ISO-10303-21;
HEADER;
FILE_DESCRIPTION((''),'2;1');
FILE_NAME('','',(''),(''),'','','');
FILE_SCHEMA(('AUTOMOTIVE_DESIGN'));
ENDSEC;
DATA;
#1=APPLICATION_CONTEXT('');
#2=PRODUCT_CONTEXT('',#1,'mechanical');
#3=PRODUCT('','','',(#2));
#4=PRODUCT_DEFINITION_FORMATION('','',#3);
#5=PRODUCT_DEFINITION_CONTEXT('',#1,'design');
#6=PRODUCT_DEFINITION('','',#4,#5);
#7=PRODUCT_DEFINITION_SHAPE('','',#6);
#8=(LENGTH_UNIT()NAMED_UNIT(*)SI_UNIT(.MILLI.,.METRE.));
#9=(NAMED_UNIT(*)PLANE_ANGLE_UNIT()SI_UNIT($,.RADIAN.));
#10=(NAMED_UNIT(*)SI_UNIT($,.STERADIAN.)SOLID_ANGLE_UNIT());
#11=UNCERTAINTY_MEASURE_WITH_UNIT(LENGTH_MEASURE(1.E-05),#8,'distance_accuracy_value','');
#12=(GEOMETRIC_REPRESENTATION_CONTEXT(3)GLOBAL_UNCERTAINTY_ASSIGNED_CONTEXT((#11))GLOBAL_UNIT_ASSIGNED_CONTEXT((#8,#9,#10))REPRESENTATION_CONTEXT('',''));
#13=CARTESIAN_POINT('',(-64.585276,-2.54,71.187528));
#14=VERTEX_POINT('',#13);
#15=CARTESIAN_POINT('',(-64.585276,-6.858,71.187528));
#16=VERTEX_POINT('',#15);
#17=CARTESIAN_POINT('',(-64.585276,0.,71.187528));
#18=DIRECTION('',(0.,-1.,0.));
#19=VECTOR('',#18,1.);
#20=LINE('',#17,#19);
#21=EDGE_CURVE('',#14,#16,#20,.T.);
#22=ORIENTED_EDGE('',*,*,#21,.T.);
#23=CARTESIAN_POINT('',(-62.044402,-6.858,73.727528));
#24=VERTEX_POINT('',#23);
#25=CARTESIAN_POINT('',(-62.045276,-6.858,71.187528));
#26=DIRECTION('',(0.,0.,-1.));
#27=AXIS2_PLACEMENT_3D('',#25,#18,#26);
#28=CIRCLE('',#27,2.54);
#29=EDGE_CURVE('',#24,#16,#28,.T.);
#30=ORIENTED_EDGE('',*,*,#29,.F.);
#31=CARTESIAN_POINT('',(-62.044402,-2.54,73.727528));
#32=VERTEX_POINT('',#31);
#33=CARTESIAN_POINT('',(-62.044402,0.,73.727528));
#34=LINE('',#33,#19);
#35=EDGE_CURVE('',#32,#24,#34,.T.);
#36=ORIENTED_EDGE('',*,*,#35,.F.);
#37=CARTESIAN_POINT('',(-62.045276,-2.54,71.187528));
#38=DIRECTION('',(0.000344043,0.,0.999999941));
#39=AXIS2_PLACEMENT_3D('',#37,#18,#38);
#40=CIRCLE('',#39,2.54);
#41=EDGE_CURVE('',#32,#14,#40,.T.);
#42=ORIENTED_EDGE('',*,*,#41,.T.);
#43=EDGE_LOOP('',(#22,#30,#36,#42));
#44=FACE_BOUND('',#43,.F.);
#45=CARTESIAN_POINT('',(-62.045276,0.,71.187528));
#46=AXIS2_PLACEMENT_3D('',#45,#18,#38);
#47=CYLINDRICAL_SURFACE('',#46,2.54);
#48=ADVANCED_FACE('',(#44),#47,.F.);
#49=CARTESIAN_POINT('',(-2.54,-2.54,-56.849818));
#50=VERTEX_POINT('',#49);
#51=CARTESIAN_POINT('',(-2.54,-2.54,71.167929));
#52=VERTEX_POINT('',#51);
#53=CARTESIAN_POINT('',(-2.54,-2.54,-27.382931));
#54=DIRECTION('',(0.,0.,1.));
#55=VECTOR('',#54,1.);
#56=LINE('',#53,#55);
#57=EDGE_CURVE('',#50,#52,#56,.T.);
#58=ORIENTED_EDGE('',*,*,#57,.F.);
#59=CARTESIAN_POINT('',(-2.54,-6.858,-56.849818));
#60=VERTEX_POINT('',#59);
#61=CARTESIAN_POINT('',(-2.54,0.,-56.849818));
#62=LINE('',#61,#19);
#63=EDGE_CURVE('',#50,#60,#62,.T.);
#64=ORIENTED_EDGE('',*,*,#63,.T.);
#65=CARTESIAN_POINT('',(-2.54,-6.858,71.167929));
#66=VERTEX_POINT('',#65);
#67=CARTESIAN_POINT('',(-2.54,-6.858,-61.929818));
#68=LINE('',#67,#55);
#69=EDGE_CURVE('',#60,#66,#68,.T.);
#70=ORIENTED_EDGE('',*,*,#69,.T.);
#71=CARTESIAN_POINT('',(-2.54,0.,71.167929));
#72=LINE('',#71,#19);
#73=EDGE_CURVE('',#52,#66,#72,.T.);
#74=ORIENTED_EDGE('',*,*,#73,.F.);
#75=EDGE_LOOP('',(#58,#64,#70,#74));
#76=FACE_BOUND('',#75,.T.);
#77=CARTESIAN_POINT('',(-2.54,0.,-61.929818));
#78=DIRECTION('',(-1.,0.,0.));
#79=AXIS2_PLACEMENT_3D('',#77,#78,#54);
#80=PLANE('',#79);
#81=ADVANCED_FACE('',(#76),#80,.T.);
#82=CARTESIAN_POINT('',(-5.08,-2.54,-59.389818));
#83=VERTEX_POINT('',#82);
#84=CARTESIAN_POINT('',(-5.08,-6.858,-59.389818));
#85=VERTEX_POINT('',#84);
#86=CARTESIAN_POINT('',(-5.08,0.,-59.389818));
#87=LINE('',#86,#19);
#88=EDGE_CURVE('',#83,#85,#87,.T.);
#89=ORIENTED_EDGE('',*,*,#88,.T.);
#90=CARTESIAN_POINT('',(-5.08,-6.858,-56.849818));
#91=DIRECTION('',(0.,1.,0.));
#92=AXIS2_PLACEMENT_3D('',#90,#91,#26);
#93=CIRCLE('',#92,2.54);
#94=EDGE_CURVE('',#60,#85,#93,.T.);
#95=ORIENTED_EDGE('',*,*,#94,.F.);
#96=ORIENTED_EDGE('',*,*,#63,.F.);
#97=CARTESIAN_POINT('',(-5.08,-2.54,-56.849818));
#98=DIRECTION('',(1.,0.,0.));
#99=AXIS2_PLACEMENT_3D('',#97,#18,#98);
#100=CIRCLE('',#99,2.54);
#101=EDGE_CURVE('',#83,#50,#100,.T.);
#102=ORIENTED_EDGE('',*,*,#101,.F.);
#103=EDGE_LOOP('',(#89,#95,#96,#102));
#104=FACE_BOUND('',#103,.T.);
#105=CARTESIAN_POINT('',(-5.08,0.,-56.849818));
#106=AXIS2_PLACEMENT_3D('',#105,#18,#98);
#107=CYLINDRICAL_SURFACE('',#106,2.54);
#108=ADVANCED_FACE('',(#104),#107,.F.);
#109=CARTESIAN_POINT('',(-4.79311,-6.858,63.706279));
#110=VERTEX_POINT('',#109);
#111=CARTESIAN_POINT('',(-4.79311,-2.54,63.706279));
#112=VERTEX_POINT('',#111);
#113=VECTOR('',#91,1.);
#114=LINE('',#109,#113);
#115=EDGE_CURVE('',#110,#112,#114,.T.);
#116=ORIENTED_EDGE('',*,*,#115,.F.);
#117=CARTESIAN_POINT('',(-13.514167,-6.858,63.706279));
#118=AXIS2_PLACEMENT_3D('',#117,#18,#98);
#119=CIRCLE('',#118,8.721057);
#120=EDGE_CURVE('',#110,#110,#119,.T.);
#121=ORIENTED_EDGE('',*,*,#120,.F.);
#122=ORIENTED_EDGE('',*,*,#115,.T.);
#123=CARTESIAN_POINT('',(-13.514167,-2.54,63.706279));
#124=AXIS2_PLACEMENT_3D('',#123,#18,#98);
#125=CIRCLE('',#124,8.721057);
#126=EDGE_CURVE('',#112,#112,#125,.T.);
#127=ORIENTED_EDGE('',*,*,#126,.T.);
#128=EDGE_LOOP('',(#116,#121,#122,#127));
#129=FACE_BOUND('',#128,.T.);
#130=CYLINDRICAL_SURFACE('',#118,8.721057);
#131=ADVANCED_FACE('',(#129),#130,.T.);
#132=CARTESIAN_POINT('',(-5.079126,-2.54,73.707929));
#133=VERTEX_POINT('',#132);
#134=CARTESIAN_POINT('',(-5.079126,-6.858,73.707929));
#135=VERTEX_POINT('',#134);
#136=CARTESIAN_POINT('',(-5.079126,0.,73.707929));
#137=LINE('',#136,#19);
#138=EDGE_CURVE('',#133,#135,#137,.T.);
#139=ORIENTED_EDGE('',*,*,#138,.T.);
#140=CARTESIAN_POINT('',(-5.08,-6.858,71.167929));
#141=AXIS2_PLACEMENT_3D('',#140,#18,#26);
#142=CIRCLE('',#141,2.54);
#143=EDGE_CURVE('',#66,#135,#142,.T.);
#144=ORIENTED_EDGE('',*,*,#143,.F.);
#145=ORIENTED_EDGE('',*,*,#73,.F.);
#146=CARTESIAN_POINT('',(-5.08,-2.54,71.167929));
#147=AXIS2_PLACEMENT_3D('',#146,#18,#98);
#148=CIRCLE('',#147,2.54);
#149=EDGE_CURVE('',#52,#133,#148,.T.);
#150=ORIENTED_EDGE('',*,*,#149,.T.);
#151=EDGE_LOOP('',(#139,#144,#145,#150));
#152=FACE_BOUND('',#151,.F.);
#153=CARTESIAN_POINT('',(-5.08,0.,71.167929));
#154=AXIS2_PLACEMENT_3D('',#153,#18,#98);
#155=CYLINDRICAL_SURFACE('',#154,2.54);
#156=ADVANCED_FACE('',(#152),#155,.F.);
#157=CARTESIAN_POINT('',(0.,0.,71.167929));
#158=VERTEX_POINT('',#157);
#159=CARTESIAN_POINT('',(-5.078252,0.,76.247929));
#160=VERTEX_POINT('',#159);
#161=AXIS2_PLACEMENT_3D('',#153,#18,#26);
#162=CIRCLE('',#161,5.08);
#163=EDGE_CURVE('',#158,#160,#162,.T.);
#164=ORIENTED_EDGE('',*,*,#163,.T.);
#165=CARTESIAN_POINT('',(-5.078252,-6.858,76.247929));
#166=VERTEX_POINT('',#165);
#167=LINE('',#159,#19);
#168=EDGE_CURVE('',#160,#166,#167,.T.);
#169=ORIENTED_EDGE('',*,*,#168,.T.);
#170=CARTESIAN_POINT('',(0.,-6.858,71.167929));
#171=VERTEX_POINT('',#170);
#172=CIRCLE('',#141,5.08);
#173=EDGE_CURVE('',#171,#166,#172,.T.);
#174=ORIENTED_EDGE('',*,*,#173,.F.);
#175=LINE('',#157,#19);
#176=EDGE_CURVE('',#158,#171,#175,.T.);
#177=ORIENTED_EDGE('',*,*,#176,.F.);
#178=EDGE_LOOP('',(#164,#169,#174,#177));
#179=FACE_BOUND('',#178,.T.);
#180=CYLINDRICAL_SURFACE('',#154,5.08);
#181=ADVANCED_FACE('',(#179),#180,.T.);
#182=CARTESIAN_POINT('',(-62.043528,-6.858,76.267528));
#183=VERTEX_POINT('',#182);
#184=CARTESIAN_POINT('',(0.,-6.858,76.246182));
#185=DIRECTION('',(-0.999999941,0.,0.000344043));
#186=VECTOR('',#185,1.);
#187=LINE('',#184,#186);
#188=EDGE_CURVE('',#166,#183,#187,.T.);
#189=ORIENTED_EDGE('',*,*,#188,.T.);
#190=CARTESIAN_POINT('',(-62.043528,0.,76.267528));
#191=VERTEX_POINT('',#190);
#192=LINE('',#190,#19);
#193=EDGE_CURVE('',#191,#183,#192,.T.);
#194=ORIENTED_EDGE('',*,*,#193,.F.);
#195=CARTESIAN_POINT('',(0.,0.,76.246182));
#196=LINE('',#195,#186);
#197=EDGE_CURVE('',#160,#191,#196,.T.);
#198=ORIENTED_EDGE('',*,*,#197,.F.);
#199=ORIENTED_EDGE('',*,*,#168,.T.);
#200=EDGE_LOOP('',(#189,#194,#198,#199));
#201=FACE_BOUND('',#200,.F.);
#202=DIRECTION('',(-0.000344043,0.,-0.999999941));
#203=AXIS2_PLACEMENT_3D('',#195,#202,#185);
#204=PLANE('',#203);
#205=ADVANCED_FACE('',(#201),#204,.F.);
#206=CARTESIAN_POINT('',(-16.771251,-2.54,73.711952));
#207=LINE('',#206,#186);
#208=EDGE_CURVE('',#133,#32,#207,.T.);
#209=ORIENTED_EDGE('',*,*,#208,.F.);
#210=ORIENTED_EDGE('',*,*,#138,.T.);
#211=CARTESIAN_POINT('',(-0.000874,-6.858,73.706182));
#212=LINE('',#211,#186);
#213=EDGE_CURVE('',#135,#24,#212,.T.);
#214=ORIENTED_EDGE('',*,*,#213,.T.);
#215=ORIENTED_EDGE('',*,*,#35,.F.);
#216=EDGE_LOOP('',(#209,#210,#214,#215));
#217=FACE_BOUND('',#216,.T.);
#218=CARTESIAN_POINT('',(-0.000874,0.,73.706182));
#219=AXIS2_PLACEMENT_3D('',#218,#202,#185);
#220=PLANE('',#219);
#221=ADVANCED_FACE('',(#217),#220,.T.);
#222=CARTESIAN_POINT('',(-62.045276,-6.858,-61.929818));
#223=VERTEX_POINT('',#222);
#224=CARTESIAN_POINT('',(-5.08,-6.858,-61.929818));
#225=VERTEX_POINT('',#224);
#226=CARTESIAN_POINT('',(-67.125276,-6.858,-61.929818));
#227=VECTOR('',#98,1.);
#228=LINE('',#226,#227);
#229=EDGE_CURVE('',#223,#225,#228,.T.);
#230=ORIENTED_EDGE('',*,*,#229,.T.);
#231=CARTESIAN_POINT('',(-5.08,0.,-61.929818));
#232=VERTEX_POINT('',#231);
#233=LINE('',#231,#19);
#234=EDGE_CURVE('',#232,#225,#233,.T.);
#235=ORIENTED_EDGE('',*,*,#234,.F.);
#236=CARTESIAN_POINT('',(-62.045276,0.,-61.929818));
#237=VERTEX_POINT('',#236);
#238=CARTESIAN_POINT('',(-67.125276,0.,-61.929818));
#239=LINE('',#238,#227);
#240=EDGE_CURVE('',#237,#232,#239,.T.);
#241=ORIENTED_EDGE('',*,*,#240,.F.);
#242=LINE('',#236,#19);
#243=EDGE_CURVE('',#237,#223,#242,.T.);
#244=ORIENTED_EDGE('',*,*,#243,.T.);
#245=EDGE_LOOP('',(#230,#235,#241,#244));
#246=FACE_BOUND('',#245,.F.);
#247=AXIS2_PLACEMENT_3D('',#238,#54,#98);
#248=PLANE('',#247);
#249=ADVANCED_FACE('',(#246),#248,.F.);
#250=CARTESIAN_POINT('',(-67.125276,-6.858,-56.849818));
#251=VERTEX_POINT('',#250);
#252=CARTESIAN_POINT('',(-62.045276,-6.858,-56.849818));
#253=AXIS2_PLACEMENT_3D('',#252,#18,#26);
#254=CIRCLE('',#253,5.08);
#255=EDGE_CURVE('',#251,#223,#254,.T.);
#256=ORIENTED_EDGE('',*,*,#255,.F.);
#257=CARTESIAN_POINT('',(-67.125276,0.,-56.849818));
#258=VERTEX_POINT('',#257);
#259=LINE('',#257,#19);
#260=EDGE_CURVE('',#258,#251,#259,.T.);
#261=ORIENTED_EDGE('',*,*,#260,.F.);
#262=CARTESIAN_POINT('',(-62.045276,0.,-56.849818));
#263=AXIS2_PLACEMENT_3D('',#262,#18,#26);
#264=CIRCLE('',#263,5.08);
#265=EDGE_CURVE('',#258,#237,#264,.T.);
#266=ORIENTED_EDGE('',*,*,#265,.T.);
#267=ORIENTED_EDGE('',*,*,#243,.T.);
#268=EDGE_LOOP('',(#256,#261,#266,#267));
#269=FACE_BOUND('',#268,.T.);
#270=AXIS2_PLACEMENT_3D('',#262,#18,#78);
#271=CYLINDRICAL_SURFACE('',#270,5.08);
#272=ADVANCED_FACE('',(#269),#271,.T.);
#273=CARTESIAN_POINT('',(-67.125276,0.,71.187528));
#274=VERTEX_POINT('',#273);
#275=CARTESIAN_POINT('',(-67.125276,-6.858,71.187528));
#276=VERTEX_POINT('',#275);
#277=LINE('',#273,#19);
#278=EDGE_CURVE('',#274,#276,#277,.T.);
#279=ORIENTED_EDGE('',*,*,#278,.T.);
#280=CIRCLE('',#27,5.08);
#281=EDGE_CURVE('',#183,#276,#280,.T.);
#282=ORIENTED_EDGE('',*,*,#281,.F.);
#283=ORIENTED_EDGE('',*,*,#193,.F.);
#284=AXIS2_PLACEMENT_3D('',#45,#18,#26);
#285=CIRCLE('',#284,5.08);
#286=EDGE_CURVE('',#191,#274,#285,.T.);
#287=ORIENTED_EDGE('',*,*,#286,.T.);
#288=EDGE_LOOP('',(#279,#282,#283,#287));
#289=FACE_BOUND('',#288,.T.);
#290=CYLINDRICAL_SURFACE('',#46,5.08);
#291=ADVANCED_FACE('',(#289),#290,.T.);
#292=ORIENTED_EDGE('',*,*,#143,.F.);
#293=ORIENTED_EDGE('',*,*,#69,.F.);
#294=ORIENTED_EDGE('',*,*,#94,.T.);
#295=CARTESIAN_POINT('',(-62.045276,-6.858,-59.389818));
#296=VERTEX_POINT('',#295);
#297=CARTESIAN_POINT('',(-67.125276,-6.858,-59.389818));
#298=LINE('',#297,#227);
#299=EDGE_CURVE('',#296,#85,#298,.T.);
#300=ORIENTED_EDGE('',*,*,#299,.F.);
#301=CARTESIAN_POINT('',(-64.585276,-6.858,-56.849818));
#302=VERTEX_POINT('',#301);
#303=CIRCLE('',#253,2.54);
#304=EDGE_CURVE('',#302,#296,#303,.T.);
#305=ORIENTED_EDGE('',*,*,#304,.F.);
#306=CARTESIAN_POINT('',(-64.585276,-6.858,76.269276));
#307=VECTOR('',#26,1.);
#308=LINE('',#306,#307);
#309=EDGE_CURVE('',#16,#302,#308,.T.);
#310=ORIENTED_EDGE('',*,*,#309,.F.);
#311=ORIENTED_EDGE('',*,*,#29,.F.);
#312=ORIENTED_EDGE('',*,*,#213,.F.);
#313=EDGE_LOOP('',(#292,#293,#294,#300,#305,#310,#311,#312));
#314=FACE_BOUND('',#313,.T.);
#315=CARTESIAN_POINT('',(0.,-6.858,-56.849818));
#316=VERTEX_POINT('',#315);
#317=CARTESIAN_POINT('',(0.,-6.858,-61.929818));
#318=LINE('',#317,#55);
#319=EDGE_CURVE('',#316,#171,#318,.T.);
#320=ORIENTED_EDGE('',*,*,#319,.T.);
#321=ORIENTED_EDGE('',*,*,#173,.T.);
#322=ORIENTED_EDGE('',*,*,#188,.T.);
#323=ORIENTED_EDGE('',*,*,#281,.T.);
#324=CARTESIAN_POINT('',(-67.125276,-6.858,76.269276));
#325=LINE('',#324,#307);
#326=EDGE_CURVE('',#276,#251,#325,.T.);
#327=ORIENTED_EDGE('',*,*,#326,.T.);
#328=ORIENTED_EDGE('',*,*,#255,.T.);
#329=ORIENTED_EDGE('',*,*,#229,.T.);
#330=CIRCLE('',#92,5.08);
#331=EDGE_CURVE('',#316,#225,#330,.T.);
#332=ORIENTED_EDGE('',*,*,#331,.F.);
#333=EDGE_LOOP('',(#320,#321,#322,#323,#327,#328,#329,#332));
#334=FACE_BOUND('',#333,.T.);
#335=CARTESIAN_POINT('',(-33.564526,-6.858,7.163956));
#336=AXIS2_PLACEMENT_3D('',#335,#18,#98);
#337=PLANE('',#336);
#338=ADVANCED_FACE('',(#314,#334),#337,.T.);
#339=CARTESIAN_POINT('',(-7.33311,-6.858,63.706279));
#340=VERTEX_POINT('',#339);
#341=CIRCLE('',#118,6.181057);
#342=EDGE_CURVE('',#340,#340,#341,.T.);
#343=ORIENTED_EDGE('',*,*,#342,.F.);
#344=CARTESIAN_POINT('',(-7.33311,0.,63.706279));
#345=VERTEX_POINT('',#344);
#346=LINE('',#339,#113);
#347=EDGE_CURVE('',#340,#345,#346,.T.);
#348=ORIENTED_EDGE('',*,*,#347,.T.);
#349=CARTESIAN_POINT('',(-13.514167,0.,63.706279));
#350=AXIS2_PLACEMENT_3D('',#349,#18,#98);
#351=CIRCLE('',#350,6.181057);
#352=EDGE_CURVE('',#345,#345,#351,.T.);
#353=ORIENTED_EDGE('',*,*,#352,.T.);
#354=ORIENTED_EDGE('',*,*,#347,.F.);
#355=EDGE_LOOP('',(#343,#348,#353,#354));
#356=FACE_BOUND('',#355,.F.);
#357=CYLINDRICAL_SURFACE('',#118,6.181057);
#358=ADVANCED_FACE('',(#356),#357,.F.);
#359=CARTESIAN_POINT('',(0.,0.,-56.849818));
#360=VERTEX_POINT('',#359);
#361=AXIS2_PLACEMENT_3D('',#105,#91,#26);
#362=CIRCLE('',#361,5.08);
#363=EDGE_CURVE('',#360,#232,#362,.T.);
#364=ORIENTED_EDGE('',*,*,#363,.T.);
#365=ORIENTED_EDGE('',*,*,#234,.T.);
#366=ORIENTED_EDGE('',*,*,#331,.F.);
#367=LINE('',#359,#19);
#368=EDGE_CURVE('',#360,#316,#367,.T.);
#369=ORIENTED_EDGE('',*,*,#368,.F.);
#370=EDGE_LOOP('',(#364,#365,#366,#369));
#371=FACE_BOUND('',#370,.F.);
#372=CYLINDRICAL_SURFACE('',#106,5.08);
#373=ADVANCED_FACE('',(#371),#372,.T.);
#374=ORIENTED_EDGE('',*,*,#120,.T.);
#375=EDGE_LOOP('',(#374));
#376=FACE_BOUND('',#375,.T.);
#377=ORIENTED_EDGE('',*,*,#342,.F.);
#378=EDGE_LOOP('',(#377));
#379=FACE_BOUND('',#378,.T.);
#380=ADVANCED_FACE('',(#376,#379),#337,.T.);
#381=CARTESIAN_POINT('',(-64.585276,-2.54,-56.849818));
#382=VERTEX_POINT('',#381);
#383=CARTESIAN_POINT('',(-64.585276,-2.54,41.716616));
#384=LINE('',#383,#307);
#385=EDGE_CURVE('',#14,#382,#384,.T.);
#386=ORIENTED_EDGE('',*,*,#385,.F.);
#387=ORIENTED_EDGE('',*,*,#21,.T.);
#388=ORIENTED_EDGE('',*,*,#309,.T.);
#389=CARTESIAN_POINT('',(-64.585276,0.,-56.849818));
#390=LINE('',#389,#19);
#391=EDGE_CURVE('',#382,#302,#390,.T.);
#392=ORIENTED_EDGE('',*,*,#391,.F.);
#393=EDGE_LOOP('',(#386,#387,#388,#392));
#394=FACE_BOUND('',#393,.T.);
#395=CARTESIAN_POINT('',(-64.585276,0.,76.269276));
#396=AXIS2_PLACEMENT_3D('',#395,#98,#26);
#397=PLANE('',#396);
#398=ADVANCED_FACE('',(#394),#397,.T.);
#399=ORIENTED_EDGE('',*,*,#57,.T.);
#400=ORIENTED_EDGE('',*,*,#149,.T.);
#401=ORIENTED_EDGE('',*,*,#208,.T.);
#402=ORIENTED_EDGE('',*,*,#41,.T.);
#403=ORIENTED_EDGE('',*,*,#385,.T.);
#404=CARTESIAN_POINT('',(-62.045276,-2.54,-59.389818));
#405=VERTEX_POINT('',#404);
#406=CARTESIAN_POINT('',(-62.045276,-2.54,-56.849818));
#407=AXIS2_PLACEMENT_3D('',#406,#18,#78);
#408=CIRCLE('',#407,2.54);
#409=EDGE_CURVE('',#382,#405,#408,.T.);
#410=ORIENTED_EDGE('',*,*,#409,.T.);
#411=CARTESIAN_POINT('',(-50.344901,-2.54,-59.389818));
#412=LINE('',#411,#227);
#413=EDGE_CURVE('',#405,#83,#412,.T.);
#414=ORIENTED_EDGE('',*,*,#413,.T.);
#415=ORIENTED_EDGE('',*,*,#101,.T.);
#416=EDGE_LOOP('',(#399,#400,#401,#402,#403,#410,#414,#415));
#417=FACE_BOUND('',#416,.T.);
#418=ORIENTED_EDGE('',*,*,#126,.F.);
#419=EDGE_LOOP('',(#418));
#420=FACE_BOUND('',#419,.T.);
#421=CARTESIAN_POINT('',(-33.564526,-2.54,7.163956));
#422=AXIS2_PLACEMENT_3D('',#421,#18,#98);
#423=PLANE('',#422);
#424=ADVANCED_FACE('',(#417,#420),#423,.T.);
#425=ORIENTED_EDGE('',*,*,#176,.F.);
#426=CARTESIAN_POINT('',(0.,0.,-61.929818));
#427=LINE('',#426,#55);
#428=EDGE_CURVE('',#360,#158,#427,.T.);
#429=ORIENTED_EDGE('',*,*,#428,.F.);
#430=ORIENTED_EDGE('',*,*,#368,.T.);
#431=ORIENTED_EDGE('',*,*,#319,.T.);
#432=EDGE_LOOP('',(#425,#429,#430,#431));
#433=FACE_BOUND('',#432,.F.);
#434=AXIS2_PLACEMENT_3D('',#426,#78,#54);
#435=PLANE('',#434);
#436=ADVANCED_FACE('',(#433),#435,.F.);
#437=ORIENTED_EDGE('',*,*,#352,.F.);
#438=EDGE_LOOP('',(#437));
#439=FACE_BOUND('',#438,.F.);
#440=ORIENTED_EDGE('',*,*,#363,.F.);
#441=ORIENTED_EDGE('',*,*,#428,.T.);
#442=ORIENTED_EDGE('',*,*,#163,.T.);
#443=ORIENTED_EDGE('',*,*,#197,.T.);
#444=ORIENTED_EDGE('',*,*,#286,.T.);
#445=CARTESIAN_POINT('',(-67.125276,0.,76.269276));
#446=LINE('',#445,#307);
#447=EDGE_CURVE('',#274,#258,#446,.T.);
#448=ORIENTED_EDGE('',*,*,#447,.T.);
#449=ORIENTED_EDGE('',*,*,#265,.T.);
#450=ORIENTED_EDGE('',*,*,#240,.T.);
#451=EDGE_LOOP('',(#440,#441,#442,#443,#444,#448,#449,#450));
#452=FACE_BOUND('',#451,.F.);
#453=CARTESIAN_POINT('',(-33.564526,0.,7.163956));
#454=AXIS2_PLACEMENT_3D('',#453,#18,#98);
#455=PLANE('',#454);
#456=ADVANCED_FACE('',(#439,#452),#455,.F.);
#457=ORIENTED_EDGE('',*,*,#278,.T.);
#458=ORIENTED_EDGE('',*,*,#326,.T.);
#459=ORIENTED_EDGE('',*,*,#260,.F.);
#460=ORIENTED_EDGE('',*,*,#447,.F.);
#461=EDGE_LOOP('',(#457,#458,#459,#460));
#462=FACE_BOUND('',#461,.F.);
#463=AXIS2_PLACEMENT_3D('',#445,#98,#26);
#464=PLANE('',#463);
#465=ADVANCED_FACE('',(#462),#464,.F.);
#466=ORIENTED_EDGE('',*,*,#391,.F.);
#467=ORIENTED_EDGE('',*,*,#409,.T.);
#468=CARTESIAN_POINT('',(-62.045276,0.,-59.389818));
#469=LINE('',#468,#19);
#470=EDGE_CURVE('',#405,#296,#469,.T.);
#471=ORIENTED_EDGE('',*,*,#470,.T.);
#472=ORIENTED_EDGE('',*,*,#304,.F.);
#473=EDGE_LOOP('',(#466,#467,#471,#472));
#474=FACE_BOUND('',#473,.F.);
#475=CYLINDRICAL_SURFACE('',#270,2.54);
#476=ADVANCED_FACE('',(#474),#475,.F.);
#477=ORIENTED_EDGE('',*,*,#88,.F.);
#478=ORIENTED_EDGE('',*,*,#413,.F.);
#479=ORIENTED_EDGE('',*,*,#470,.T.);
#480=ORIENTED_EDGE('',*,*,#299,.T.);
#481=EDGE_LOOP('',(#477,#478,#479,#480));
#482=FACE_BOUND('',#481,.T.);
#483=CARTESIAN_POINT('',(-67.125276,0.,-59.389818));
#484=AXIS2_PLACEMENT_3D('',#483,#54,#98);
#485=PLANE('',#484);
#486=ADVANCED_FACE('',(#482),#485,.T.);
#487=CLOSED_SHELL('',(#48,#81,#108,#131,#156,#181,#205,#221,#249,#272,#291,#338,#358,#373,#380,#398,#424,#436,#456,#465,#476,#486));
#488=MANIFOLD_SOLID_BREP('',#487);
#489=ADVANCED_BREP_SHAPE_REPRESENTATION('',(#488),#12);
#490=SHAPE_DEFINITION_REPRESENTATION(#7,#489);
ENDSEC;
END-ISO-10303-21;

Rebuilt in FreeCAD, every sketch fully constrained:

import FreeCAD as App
import Part
import Sketcher
Q = App.Units.Quantity


def edges_at(feature, points):
    """Names of the edges that pass closest to the given points."""
    edges = feature.Shape.Edges
    near = lambda p: min(range(len(edges)), key=lambda i: edges[i].distToShape(Part.Vertex(*p))[0])
    return sorted({f"Edge{near(p) + 1}" for p in points})


def faces_at(feature, points):
    """Names of the faces that lie closest to the given points."""
    faces = feature.Shape.Faces
    near = lambda p: min(range(len(faces)), key=lambda i: faces[i].distToShape(Part.Vertex(*p))[0])
    return sorted({f"Face{near(p) + 1}" for p in points})

doc = App.newDocument("Part")
body = doc.addObject("PartDesign::Body", "Body")

# Sketch on XZ plane
sketch1 = doc.addObject("Sketcher::SketchObject", "Sketch")
body.addObject(sketch1)
sketch1.AttachmentSupport = (doc.XZ_Plane, [""])
sketch1.MapMode = "FlatFace"
sketch1.addGeometry([
    Part.LineSegment(App.Vector(0, -61.929818, 0), App.Vector(0, 76.246182, 0)),
    Part.LineSegment(App.Vector(0, 76.246182, 0), App.Vector(-67.125276, 76.269276, 0)),
    Part.LineSegment(App.Vector(-67.125276, 76.269276, 0), App.Vector(-67.125276, -61.929818, 0)),
    Part.LineSegment(App.Vector(-67.125276, -61.929818, 0), App.Vector(0, -61.929818, 0)),
], False)
sketch1.addConstraint([
    Sketcher.Constraint("Coincident", 0, 2, 1, 1),
    Sketcher.Constraint("Coincident", 1, 2, 2, 1),
    Sketcher.Constraint("Coincident", 2, 2, 3, 1),
    Sketcher.Constraint("Coincident", 3, 2, 0, 1),
    Sketcher.Constraint("Vertical", 0),
    Sketcher.Constraint("Vertical", 2),
    Sketcher.Constraint("Horizontal", 3),
    Sketcher.Constraint("PointOnObject", 0, 2, -2),
    Sketcher.Constraint("DistanceY", 0, 1, 0, 2, Q("5.44 in")),
    Sketcher.Constraint("Distance", 1, 67.12528),
    Sketcher.Constraint("DistanceY", 2, 2, 2, 1, 138.199094),
    Sketcher.Constraint("DistanceY", -1, 1, 0, 2, 76.246182),
])
pad1 = doc.addObject("PartDesign::Pad", "Pad")
body.addObject(pad1)
pad1.Profile = sketch1
pad1.Length = Q("0.27 in")
doc.recompute()

fillet = doc.addObject("PartDesign::Fillet", "Fillet")
body.addObject(fillet)
fillet.Base = (pad1, edges_at(pad1, [
    (-67.125, -3.429, 76.269),
    (0, -3.429, -61.93),
    (-67.125, -3.429, -61.93),
    (0, -3.429, 76.246),
]))
fillet.Radius = Q("0.2 in")

# Sketch on XZ plane
sketch2 = doc.addObject("Sketcher::SketchObject", "Sketch001")
body.addObject(sketch2)
sketch2.AttachmentSupport = (doc.XZ_Plane, [""])
sketch2.MapMode = "FlatFace"
sketch2.AttachmentOffset = App.Placement(App.Vector(0, 0, 0.27 * 25.4), App.Rotation())
sketch2.addGeometry(Part.Circle(App.Vector(-13.514167, 63.706279, 0), App.Vector(0, 0, 1), 6.181057), False)
sketch2.addConstraint([
    Sketcher.Constraint("Diameter", 0, 12.362114),
    Sketcher.Constraint("DistanceY", -1, 1, 0, 3, 63.706279),
    Sketcher.Constraint("DistanceX", 0, 3, -1, 1, 13.514167),
])
pocket1 = doc.addObject("PartDesign::Pocket", "Pocket")
body.addObject(pocket1)
pocket1.Profile = sketch2
pocket1.Length = Q("0.27 in")
doc.recompute()

thickness = doc.addObject("PartDesign::Thickness", "Thickness")
body.addObject(thickness)
thickness.Base = (pocket1, faces_at(pocket1, [(-33.563, -6.858, 7.169)]))
thickness.Value = Q("0.1 in")
thickness.Reversed = True
thickness.Join = "Arc"

doc.recompute()
